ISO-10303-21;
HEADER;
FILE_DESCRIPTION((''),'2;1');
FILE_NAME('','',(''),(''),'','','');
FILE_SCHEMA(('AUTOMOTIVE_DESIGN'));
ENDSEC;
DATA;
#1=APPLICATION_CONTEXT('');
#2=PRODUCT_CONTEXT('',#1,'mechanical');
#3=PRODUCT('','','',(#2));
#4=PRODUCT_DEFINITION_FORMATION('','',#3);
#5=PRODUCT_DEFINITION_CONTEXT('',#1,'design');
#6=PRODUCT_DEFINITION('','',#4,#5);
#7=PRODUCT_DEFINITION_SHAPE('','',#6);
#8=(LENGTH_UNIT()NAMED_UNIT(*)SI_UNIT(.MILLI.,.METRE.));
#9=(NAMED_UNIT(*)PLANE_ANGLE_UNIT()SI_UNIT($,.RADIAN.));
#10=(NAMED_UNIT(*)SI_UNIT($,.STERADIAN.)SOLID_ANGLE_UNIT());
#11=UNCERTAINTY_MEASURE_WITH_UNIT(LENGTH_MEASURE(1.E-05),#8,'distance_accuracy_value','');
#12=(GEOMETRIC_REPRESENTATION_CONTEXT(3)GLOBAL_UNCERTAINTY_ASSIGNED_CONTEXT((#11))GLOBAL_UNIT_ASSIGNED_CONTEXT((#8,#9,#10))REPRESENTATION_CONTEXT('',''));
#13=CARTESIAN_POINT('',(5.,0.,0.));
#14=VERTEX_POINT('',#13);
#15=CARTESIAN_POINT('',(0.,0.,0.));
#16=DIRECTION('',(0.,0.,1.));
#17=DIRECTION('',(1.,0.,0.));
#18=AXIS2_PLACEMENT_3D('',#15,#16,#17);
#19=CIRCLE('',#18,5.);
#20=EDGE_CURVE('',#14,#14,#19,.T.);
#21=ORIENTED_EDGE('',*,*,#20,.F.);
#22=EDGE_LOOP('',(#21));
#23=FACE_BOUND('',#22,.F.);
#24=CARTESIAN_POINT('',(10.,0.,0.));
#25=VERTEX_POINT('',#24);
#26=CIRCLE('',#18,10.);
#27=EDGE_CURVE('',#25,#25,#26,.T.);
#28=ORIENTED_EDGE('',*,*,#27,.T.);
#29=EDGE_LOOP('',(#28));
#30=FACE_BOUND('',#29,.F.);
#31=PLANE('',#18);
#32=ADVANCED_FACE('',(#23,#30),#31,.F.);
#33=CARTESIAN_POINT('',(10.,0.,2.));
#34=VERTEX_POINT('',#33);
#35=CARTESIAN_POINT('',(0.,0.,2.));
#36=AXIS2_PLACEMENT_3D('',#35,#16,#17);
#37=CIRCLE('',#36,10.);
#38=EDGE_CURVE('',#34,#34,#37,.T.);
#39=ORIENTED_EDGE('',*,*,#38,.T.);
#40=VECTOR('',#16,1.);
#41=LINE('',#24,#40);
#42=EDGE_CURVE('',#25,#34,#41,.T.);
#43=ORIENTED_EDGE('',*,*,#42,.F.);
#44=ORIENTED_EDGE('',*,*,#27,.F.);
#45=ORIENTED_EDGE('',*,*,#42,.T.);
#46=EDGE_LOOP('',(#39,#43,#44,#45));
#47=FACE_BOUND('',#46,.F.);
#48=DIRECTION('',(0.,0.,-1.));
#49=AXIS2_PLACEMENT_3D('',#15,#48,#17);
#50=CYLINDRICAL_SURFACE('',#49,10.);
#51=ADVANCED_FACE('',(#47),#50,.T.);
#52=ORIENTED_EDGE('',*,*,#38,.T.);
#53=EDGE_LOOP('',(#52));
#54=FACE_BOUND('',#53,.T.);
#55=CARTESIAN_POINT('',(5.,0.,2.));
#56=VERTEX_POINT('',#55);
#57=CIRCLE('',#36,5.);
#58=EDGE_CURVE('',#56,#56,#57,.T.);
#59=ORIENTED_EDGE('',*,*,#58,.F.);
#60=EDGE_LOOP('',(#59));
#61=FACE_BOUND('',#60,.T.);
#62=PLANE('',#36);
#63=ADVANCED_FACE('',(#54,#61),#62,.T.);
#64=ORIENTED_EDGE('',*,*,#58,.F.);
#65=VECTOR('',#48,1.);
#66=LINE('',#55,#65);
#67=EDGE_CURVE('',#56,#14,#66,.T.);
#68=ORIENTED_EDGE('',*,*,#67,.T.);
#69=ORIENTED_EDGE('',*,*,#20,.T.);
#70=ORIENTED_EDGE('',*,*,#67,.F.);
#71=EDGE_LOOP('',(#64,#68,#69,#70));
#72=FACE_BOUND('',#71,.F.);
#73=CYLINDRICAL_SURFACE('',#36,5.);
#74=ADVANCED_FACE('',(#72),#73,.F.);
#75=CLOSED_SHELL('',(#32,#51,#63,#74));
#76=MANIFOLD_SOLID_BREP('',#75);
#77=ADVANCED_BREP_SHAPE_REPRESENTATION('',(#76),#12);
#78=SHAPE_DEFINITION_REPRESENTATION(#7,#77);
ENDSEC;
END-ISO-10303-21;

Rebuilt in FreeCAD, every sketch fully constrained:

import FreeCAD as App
import Part
import Sketcher

doc = App.newDocument("Part")
body = doc.addObject("PartDesign::Body", "Body")

# Sketch on XY plane
sketch1 = body.newObject("Sketcher::SketchObject", "Sketch")
sketch1.AttachmentSupport = (doc.getObject("XY_Plane"), [""])
sketch1.MapMode = "FlatFace"
sketch1.addGeometry(Part.Circle(App.Vector(0, 0, 0), App.Vector(0, 0, 1), 10), False)
sketch1.addConstraint([
    Sketcher.Constraint("Coincident", 0, 3, -1, 1),
    Sketcher.Constraint("Diameter", 0, 20.0),
])
pad1 = body.newObject("PartDesign::Pad", "Pad")
pad1.Profile = sketch1
pad1.Length = 2

# Sketch on XY plane
sketch2 = body.newObject("Sketcher::SketchObject", "Sketch001")
sketch2.AttachmentSupport = (doc.getObject("XY_Plane"), [""])
sketch2.MapMode = "FlatFace"
sketch2.AttachmentOffset = App.Placement(App.Vector(0, 0, 2), App.Rotation())
sketch2.addGeometry(Part.Circle(App.Vector(0, 0, 0), App.Vector(0, 0, 1), 5), False)
sketch2.addConstraint([
    Sketcher.Constraint("Coincident", 0, 3, -1, 1),
    Sketcher.Constraint("Diameter", 0, 10.0),
])
pocket1 = body.newObject("PartDesign::Pocket", "Pocket")
pocket1.Profile = sketch2
pocket1.Length = 4

doc.recompute()
